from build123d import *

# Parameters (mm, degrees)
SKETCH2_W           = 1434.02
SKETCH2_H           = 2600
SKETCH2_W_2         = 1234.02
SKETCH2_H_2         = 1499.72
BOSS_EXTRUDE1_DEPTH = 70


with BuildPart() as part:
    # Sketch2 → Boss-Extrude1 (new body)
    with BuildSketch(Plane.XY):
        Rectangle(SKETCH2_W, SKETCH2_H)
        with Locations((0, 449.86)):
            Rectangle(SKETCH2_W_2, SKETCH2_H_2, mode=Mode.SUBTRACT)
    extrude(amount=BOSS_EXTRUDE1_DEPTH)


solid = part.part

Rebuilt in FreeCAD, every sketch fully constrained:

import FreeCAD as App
import Part
import Sketcher


def add_polygon(sketch, points):
    """Adds a closed chain of lines whose ends are joined by coincident constraints."""
    first, n = sketch.GeometryCount, len(points)
    for a, b in zip(points, points[1:] + points[:1]):
        sketch.addGeometry(Part.LineSegment(App.Vector(*a, 0), App.Vector(*b, 0)), False)
    for i in range(n):
        sketch.addConstraint(Sketcher.Constraint("Coincident", first + i, 2, first + (i + 1) % n, 1))

doc = App.newDocument("Part")
body = doc.addObject("PartDesign::Body", "Body")

sketch1 = body.newObject("Sketcher::SketchObject", "Sketch")
sketch1.AttachmentSupport = (doc.getObject("XY_Plane"), [""])
sketch1.MapMode = "FlatFace"
add_polygon(sketch1, [(-717, 1300), (-717, -1300), (717, -1300), (717, 1300)])
add_polygon(sketch1, [(617, -300), (-617, -300), (-617, 1200), (617, 1200)])
sketch1.addConstraint([
    Sketcher.Constraint("Vertical", 0),
    Sketcher.Constraint("Horizontal", 1),
    Sketcher.Constraint("Vertical", 2),
    Sketcher.Constraint("Horizontal", 3),
    Sketcher.Constraint("Horizontal", 4),
    Sketcher.Constraint("Vertical", 5),
    Sketcher.Constraint("Horizontal", 6),
    Sketcher.Constraint("Vertical", 7),
    Sketcher.Constraint("Symmetric", 0, 2, 2, 2, -1, 1),
    Sketcher.Constraint("DistanceY", 0, 2, 0, 1, 2600.0),
    Sketcher.Constraint("DistanceY", 4, 2, -1, 1, 300.0),
    Sketcher.Constraint("DistanceX", 0, 2, 4, 2, 100.0),
    Sketcher.Constraint("DistanceX", 6, 2, 2, 2, 100.0),
    Sketcher.Constraint("DistanceX", 1, 1, 1, 2, 1434.02),
    Sketcher.Constraint("DistanceY", 5, 1, 5, 2, 1499.72),
])
pad1 = body.newObject("PartDesign::Pad", "Pad")
pad1.Profile = sketch1
pad1.Length = 70

doc.recompute()
